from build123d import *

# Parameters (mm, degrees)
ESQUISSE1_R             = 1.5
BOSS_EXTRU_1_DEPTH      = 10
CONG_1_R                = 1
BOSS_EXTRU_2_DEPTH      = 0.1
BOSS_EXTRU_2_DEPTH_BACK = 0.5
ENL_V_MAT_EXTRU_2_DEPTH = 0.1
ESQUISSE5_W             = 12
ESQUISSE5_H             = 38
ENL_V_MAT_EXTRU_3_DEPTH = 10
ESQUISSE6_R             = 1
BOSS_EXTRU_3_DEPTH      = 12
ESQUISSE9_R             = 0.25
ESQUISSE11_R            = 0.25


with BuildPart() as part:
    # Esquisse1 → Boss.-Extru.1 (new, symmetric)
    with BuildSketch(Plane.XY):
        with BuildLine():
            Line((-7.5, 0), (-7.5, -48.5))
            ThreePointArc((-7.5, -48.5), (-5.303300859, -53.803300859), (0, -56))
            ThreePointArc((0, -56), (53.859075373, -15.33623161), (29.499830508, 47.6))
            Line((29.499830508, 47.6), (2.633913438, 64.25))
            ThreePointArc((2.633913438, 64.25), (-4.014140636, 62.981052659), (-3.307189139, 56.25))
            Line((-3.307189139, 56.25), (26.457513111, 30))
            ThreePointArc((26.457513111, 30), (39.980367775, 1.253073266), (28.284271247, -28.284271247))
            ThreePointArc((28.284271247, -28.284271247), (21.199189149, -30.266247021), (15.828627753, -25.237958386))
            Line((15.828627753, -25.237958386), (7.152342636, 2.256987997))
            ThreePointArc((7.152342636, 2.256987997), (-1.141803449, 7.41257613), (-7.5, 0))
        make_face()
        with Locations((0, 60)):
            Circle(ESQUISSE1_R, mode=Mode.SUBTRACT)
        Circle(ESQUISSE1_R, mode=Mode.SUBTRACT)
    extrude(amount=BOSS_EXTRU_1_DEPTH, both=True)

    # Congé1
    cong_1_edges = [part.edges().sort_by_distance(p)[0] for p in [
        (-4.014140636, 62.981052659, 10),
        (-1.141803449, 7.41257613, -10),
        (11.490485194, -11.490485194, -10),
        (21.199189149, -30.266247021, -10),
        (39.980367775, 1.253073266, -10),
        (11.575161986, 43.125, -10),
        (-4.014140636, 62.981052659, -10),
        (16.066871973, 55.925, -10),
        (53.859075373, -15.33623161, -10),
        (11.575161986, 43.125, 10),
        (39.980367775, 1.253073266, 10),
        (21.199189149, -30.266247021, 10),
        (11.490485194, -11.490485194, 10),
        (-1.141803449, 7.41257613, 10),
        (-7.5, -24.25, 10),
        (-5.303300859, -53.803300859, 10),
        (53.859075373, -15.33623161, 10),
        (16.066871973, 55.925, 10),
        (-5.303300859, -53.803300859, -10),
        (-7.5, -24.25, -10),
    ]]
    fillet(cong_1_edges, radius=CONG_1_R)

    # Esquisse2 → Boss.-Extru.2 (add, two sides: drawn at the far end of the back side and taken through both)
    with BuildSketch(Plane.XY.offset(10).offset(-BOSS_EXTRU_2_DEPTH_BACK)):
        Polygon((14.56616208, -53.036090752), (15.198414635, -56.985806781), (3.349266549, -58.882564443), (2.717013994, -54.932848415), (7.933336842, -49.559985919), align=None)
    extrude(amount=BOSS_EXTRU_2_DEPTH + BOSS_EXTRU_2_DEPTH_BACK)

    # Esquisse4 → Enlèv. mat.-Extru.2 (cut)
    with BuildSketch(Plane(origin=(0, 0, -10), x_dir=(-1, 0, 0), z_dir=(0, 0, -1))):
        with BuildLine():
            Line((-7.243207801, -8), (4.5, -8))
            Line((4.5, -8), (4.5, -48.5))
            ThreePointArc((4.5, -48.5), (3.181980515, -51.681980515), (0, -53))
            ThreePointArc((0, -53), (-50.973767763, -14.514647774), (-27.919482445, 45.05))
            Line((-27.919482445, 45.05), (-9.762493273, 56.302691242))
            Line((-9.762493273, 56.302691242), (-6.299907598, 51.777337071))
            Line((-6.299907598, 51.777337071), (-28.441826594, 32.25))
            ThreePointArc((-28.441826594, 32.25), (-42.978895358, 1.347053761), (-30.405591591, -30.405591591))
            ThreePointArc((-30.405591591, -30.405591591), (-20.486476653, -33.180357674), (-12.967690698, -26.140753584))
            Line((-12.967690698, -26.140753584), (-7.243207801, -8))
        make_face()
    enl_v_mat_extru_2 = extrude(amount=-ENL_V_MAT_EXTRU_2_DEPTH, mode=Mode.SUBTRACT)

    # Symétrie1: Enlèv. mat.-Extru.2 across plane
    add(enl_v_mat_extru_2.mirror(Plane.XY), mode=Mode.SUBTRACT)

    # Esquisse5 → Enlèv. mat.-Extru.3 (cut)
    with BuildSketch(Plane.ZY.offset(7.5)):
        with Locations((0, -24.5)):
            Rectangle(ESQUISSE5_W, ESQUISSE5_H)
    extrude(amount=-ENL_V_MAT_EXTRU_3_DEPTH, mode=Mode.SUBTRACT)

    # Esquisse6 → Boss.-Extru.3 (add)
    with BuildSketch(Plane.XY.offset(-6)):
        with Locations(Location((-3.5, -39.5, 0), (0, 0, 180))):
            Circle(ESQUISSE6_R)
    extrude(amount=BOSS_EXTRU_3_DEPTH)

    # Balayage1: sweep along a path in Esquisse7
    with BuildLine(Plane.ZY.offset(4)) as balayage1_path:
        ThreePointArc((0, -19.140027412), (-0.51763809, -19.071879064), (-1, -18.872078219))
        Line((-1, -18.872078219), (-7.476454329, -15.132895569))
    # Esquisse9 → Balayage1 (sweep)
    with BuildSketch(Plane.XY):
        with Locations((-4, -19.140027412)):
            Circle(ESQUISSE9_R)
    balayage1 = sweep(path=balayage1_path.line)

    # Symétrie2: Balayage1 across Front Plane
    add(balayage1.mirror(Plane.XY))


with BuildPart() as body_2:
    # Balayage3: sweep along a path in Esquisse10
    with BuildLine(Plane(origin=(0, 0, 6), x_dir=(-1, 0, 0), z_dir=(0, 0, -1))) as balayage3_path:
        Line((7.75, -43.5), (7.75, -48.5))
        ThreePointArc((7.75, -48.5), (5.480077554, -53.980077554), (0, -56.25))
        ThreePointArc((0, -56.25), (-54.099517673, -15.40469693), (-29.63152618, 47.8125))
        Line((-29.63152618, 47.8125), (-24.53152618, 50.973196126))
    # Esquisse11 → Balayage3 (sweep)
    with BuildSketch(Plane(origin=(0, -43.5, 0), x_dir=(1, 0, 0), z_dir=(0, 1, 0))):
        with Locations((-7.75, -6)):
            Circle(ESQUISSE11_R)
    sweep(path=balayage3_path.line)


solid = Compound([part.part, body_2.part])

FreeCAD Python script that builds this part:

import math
import FreeCAD as App
import Part
import Sketcher
from FreeCAD import Vector
Q = App.Units.Quantity


def edges_at(feature, points):
    """Names of the edges that pass closest to the given points."""
    edges = feature.Shape.Edges
    near = lambda p: min(range(len(edges)), key=lambda i: edges[i].distToShape(Part.Vertex(*p))[0])
    return sorted({f"Edge{near(p) + 1}" for p in points})

doc = App.newDocument("Part")
body = doc.addObject("PartDesign::Body", "Body")

sketch1 = body.newObject("Sketcher::SketchObject", "Sketch")
sketch1.AttachmentSupport = (doc.getObject("XY_Plane"), [""])
sketch1.MapMode = "FlatFace"
sketch1.addGeometry(Part.LineSegment(Vector(-7.5, 0, 0), Vector(-7.5, -48.5, 0)), False)
sketch1.addGeometry(Part.ArcOfCircle(Part.Circle(Vector(0, -48.5, 0), Vector(0, 0, 1), 7.5), math.radians(180), math.radians(270)), False)
sketch1.addGeometry(Part.ArcOfCircle(Part.Circle(Vector(0, 0, 0), Vector(0, 0, 1), 56), math.radians(-90), math.radians(58)), False)
sketch1.addGeometry(Part.LineSegment(Vector(29.5, 47.6, 0), Vector(2.6, 64.2, 0)), False)
sketch1.addGeometry(Part.ArcOfCircle(Part.Circle(Vector(0, 60, 0), Vector(0, 0, 1), 5), math.radians(58), math.radians(229)), False)
sketch1.addGeometry(Part.LineSegment(Vector(-3.3, 56.2, 0), Vector(26.5, 30, 0)), False)
sketch1.addGeometry(Part.ArcOfCircle(Part.Circle(Vector(0, 0, 0), Vector(0, 0, 1), 40), math.radians(-45), math.radians(49)), False)
sketch1.addGeometry(Part.ArcOfCircle(Part.Circle(Vector(23, -23, 0), Vector(0, 0, 1), 7.5), math.radians(-162), math.radians(-45)), False)
sketch1.addGeometry(Part.LineSegment(Vector(15.8, -25.2, 0), Vector(7.2, 2.3, 0)), False)
sketch1.addGeometry(Part.ArcOfCircle(Part.Circle(Vector(0, 0, 0), Vector(0, 0, 1), 7.5), math.radians(18), math.radians(180)), False)
sketch1.addGeometry(Part.Circle(Vector(0, 0, 0), Vector(0, 0, 1), 1.5), False)
sketch1.addGeometry(Part.Circle(Vector(0, 60, 0), Vector(0, 0, 1), 1.5), False)
sketch1.addConstraint(Sketcher.Constraint("Tangent", 0, 2, 1, 1))
sketch1.addConstraint(Sketcher.Constraint("Tangent", 1, 2, 2, 1))
sketch1.addConstraint(Sketcher.Constraint("Tangent", 2, 2, 3, 1))
sketch1.addConstraint(Sketcher.Constraint("Tangent", 3, 2, 4, 1))
sketch1.addConstraint(Sketcher.Constraint("Tangent", 4, 2, 5, 1))
sketch1.addConstraint(Sketcher.Constraint("Tangent", 5, 2, 6, 2))
sketch1.addConstraint(Sketcher.Constraint("Tangent", 6, 1, 7, 2))
sketch1.addConstraint(Sketcher.Constraint("Tangent", 7, 1, 8, 1))
sketch1.addConstraint(Sketcher.Constraint("Tangent", 8, 2, 9, 1))
sketch1.addConstraint(Sketcher.Constraint("Tangent", 9, 2, 0, 1))
sketch1.addConstraint(Sketcher.Constraint("Vertical", 0))
sketch1.addConstraint(Sketcher.Constraint("Coincident", 2, 3, -1, 1))
sketch1.addConstraint(Sketcher.Constraint("Coincident", 6, 3, -1, 1))
sketch1.addConstraint(Sketcher.Constraint("Coincident", 9, 3, -1, 1))
sketch1.addConstraint(Sketcher.Constraint("Coincident", 10, 3, -1, 1))
sketch1.addConstraint(Sketcher.Constraint("Coincident", 11, 3, 4, 3))
sketch1.addConstraint(Sketcher.Constraint("Equal", 1, 7))
sketch1.addConstraint(Sketcher.Constraint("Equal", 7, 9))
sketch1.addConstraint(Sketcher.Constraint("Equal", 10, 11))
sketch1.addConstraint(Sketcher.Constraint("PointOnObject", 4, 3, -2))
sketch1.addConstraint(Sketcher.Constraint("Diameter", 10, Q("3 mm")))
sketch1.addConstraint(Sketcher.Constraint("Radius", 2, Q("56 mm")))
sketch1.addConstraint(Sketcher.Constraint("Radius", 4, Q("5 mm")))
sketch1.addConstraint(Sketcher.Constraint("Radius", 6, Q("40 mm")))
sketch1.addConstraint(Sketcher.Constraint("Radius", 1, Q("7.5 mm")))
sketch1.addConstraint(Sketcher.Constraint("DistanceY", -1, 1, 4, 3, Q("60 mm")))
sketch1.addConstraint(Sketcher.Constraint("DistanceX", 7, 3, 6, 1, Q("5.303301 mm")))
pad1 = body.newObject("PartDesign::Pad", "Pad")
pad1.Profile = sketch1
pad1.Length = 20
pad1.Midplane = True
doc.recompute()

fillet = body.newObject("PartDesign::Fillet", "Fillet")
fillet.Base = (pad1, edges_at(pad1, [
    (-4.014, 62.981, 10),
    (-1.142, 7.413, -10),
    (11.49, -11.49, -10),
    (21.199, -30.266, -10),
    (39.98, 1.253, -10),
    (11.575, 43.125, -10),
    (-4.014, 62.981, -10),
    (16.067, 55.925, -10),
    (53.859, -15.336, -10),
    (11.575, 43.125, 10),
    (39.98, 1.253, 10),
    (21.199, -30.266, 10),
    (11.49, -11.49, 10),
    (-1.142, 7.413, 10),
    (-7.5, -24.25, 10),
    (-5.303, -53.803, 10),
    (53.859, -15.336, 10),
    (16.067, 55.925, 10),
    (-5.303, -53.803, -10),
    (-7.5, -24.25, -10),
]))
fillet.Radius = 1

sketch2 = body.newObject("Sketcher::SketchObject", "Sketch001")
sketch2.AttachmentSupport = (doc.getObject("XY_Plane"), [""])
sketch2.MapMode = "FlatFace"
sketch2.AttachmentOffset = App.Placement(Vector(0, 0, 10), App.Rotation())
sketch2.addGeometry(Part.LineSegment(Vector(15.2, -57, 0), Vector(14.6, -53, 0)), False)
sketch2.addGeometry(Part.LineSegment(Vector(14.6, -53, 0), Vector(7.9, -49.6, 0)), False)
sketch2.addGeometry(Part.LineSegment(Vector(7.9, -49.6, 0), Vector(2.7, -54.9, 0)), False)
sketch2.addGeometry(Part.LineSegment(Vector(2.7, -54.9, 0), Vector(3.3, -58.9, 0)), False)
sketch2.addGeometry(Part.LineSegment(Vector(3.3, -58.9, 0), Vector(15.2, -57, 0)), False)
sketch2.addConstraint(Sketcher.Constraint("Coincident", 0, 2, 1, 1))
sketch2.addConstraint(Sketcher.Constraint("Coincident", 1, 2, 2, 1))
sketch2.addConstraint(Sketcher.Constraint("Coincident", 2, 2, 3, 1))
sketch2.addConstraint(Sketcher.Constraint("Coincident", 3, 2, 4, 1))
sketch2.addConstraint(Sketcher.Constraint("Coincident", 4, 2, 0, 1))
sketch2.addConstraint(Sketcher.Constraint("Parallel", 0, 3))
sketch2.addConstraint(Sketcher.Constraint("Perpendicular", 3, 4))
sketch2.addConstraint(Sketcher.Constraint("Equal", 1, 2))
sketch2.addConstraint(Sketcher.Constraint("Equal", 0, 3))
sketch2.addConstraint(Sketcher.Constraint("Distance", 0, Q("4 mm")))
sketch2.addConstraint(Sketcher.Constraint("Distance", 4, Q("12 mm")))
sketch2.addConstraint(Sketcher.Constraint("DistanceX", 2, 2, 4, 2, Q("12.481401 mm")))
sketch2.addConstraint(Sketcher.Constraint("DistanceY", 0, 2, -1, 1, Q("53.036091 mm")))
sketch2.addConstraint(Sketcher.Constraint("DistanceX", 3, 2, 1, 2, Q("4.58407 mm")))
sketch2.addConstraint(Sketcher.Constraint("DistanceX", -1, 1, 0, 2, Q("14.566162 mm")))
pad2 = body.newObject("PartDesign::Pad", "Pad001")
pad2.Profile = sketch2
pad2.Type = "TwoLengths"
pad2.Length = 0.1
pad2.Length2 = 0.5

sketch3 = body.newObject("Sketcher::SketchObject", "Sketch002")
sketch3.AttachmentSupport = (doc.getObject("XY_Plane"), [""])
sketch3.MapMode = "FlatFace"
sketch3.AttachmentOffset = App.Placement(Vector(0, 0, -10), App.Rotation())
sketch3.addGeometry(Part.LineSegment(Vector(-4.5, -8, 0), Vector(7.2, -8, 0)), False)
sketch3.addGeometry(Part.LineSegment(Vector(7.2, -8, 0), Vector(13, -26.1, 0)), False)
sketch3.addGeometry(Part.ArcOfCircle(Part.Circle(Vector(23, -23, 0), Vector(0, 0, 1), 10.5), math.radians(-162), math.radians(-45)), False)
sketch3.addGeometry(Part.ArcOfCircle(Part.Circle(Vector(0, 0, 0), Vector(0, 0, 1), 43), math.radians(-45), math.radians(49)), False)
sketch3.addGeometry(Part.LineSegment(Vector(28.4, 32.2, 0), Vector(6.3, 51.8, 0)), False)
sketch3.addGeometry(Part.LineSegment(Vector(6.3, 51.8, 0), Vector(9.8, 56.3, 0)), False)
sketch3.addGeometry(Part.LineSegment(Vector(9.8, 56.3, 0), Vector(27.9, 45, 0)), False)
sketch3.addGeometry(Part.ArcOfCircle(Part.Circle(Vector(0, 0, 0), Vector(0, 0, 1), 53), math.radians(-90), math.radians(58)), False)
sketch3.addGeometry(Part.ArcOfCircle(Part.Circle(Vector(0, -48.5, 0), Vector(0, 0, 1), 4.5), math.radians(-180), math.radians(-90)), False)
sketch3.addGeometry(Part.LineSegment(Vector(-4.5, -48.5, 0), Vector(-4.5, -8, 0)), False)
sketch3.addConstraint(Sketcher.Constraint("Coincident", 0, 2, 1, 1))
sketch3.addConstraint(Sketcher.Constraint("Tangent", 1, 2, 2, 1))
sketch3.addConstraint(Sketcher.Constraint("Tangent", 2, 2, 3, 1))
sketch3.addConstraint(Sketcher.Constraint("Tangent", 3, 2, 4, 1))
sketch3.addConstraint(Sketcher.Constraint("Coincident", 4, 2, 5, 1))
sketch3.addConstraint(Sketcher.Constraint("Coincident", 5, 2, 6, 1))
sketch3.addConstraint(Sketcher.Constraint("Tangent", 6, 2, 7, 2))
sketch3.addConstraint(Sketcher.Constraint("Tangent", 7, 1, 8, 2))
sketch3.addConstraint(Sketcher.Constraint("Tangent", 8, 1, 9, 1))
sketch3.addConstraint(Sketcher.Constraint("Coincident", 9, 2, 0, 1))
sketch3.addConstraint(Sketcher.Constraint("Horizontal", 0))
sketch3.addConstraint(Sketcher.Constraint("Vertical", 9))
sketch3.addConstraint(Sketcher.Constraint("Coincident", 3, 3, -1, 1))
sketch3.addConstraint(Sketcher.Constraint("Coincident", 7, 3, -1, 1))
sketch3.addConstraint(Sketcher.Constraint("PointOnObject", 8, 3, -2))
sketch3.addConstraint(Sketcher.Constraint("Radius", 3, Q("43 mm")))
sketch3.addConstraint(Sketcher.Constraint("Radius", 7, Q("53 mm")))
sketch3.addConstraint(Sketcher.Constraint("Radius", 2, Q("10.5 mm")))
sketch3.addConstraint(Sketcher.Constraint("Radius", 8, Q("4.5 mm")))
sketch3.addConstraint(Sketcher.Constraint("DistanceY", 9, 1, 9, 2, Q("40.5 mm")))
sketch3.addConstraint(Sketcher.Constraint("DistanceY", 3, 2, 6, 2, Q("12.8 mm")))
sketch3.addConstraint(Sketcher.Constraint("DistanceY", -1, 1, 3, 2, Q("32.25 mm")))
sketch3.addConstraint(Sketcher.Constraint("Distance", 5, Q("5.698099 mm")))
sketch3.addConstraint(Sketcher.Constraint("DistanceX", 1, 2, 2, 2, Q("17.437901 mm")))
sketch3.addConstraint(Sketcher.Constraint("DistanceX", 4, 2, 0, 2, Q("0.9433 mm")))
sketch3.addConstraint(Sketcher.Constraint("Distance", 1, Q("19.02253 mm")))
pocket1 = body.newObject("PartDesign::Pocket", "Pocket")
pocket1.Profile = sketch3
pocket1.Length = 0.1
pocket1.Reversed = True
doc.recompute()

mirrored = body.newObject("PartDesign::Mirrored", "Mirrored")
mirrored.Originals = [pocket1]
mirrored.MirrorPlane = (doc.getObject("XY_Plane"), [""])
body.Tip = mirrored

sketch4 = body.newObject("Sketcher::SketchObject", "Sketch003")
sketch4.AttachmentSupport = (doc.getObject("YZ_Plane"), [""])
sketch4.MapMode = "FlatFace"
sketch4.AttachmentOffset = App.Placement(Vector(0, 0, -7.5), App.Rotation())
sketch4.addGeometry(Part.LineSegment(Vector(-6, -6, 0), Vector(-44, -6, 0)), False)
sketch4.addGeometry(Part.LineSegment(Vector(-44, -6, 0), Vector(-44, 6, 0)), False)
sketch4.addGeometry(Part.LineSegment(Vector(-44, 6, 0), Vector(-6, 6, 0)), False)
sketch4.addGeometry(Part.LineSegment(Vector(-6, 6, 0), Vector(-6, -6, 0)), False)
sketch4.addConstraint(Sketcher.Constraint("Coincident", 0, 2, 1, 1))
sketch4.addConstraint(Sketcher.Constraint("Coincident", 1, 2, 2, 1))
sketch4.addConstraint(Sketcher.Constraint("Coincident", 2, 2, 3, 1))
sketch4.addConstraint(Sketcher.Constraint("Coincident", 3, 2, 0, 1))
sketch4.addConstraint(Sketcher.Constraint("Horizontal", 0))
sketch4.addConstraint(Sketcher.Constraint("Vertical", 1))
sketch4.addConstraint(Sketcher.Constraint("Horizontal", 2))
sketch4.addConstraint(Sketcher.Constraint("Vertical", 3))
sketch4.addConstraint(Sketcher.Constraint("DistanceX", 0, 2, 0, 1, Q("38 mm")))
sketch4.addConstraint(Sketcher.Constraint("DistanceY", 1, 1, 1, 2, Q("12 mm")))
sketch4.addConstraint(Sketcher.Constraint("DistanceY", 0, 2, -1, 1, Q("6 mm")))
sketch4.addConstraint(Sketcher.Constraint("DistanceX", 0, 2, -1, 1, Q("43.5 mm")))
pocket2 = body.newObject("PartDesign::Pocket", "Pocket001")
pocket2.Profile = sketch4
pocket2.Length = 10
pocket2.Reversed = True

sketch5 = body.newObject("Sketcher::SketchObject", "Sketch004")
sketch5.AttachmentSupport = (doc.getObject("XY_Plane"), [""])
sketch5.MapMode = "FlatFace"
sketch5.AttachmentOffset = App.Placement(Vector(0, 0, -6), App.Rotation())
sketch5.addGeometry(Part.Circle(Vector(-3.5, -39.5, 0), Vector(0, 0, 1), 1), False)
sketch5.addConstraint(Sketcher.Constraint("Diameter", 0, Q("2 mm")))
sketch5.addConstraint(Sketcher.Constraint("DistanceX", 0, 3, -1, 1, Q("3.5 mm")))
sketch5.addConstraint(Sketcher.Constraint("DistanceY", 0, 3, -1, 1, Q("39.5 mm")))
pad3 = body.newObject("PartDesign::Pad", "Pad002")
pad3.Profile = sketch5
pad3.Length = 12

sketch6 = body.newObject("Sketcher::SketchObject", "Sketch005")
sketch6.AttachmentSupport = (doc.getObject("XY_Plane"), [""])
sketch6.MapMode = "FlatFace"
sketch6.addGeometry(Part.Circle(Vector(-4, -19.140027, 0), Vector(0, 0, 1), 0.25), False)
sketch6.addConstraint(Sketcher.Constraint("Diameter", 0, Q("0.5 mm")))
sketch6.addConstraint(Sketcher.Constraint("DistanceX", 0, 3, -1, 1, Q("4 mm")))
sketch6.addConstraint(Sketcher.Constraint("DistanceY", 0, 3, -1, 1, Q("19.140027 mm")))

sketch7 = body.newObject("Sketcher::SketchObject", "Sketch006")
sketch7.AttachmentSupport = (doc.getObject("YZ_Plane"), [""])
sketch7.MapMode = "FlatFace"
sketch7.AttachmentOffset = App.Placement(Vector(0, 0, -4), App.Rotation())
sketch7.addGeometry(Part.ArcOfCircle(Part.Circle(Vector(-17.1, 0, 0), Vector(0, 0, 1), 2), math.radians(-180), math.radians(-150)), False)
sketch7.addGeometry(Part.LineSegment(Vector(-18.9, -1, 0), Vector(-15.1, -7.5, 0)), False)
sketch7.addConstraint(Sketcher.Constraint("Tangent", 0, 2, 1, 1))
sketch7.addConstraint(Sketcher.Constraint("PointOnObject", 0, 3, -1))
sketch7.addConstraint(Sketcher.Constraint("PointOnObject", 0, 1, -1))
sketch7.addConstraint(Sketcher.Constraint("Radius", 0, Q("2 mm")))
sketch7.addConstraint(Sketcher.Constraint("Angle", 1, Q("-60 deg")))
sketch7.addConstraint(Sketcher.Constraint("DistanceX", 0, 2, -1, 1, Q("18.872078 mm")))
sketch7.addConstraint(Sketcher.Constraint("DistanceX", 0, 3, 1, 2, Q("2.007132 mm")))
doc.recompute()

additivepipe = body.newObject("PartDesign::AdditivePipe", "AdditivePipe")
additivepipe.Profile = sketch6
additivepipe.Spine = (sketch7, ["Edge1", "Edge2"])
doc.recompute()

mirrored2 = body.newObject("PartDesign::Mirrored", "Mirrored001")
mirrored2.Originals = [additivepipe]
mirrored2.MirrorPlane = (doc.getObject("XY_Plane"), [""])
body.Tip = mirrored2
body2 = doc.addObject("PartDesign::Body", "Body001")

sketch8 = body2.newObject("Sketcher::SketchObject", "Sketch007")
sketch8.AttachmentSupport = (doc.getObject("XZ_Plane001"), [""])
sketch8.MapMode = "FlatFace"
sketch8.AttachmentOffset = App.Placement(Vector(0, 0, 43.5), App.Rotation())
sketch8.addGeometry(Part.Circle(Vector(-7.75, 6, 0), Vector(0, 0, 1), 0.25), False)
sketch8.addConstraint(Sketcher.Constraint("Diameter", 0, Q("0.5 mm")))
sketch8.addConstraint(Sketcher.Constraint("DistanceY", -1, 1, 0, 3, Q("6 mm")))
sketch8.addConstraint(Sketcher.Constraint("DistanceX", 0, 3, -1, 1, Q("7.75 mm")))

sketch9 = body2.newObject("Sketcher::SketchObject", "Sketch008")
sketch9.AttachmentSupport = (doc.getObject("XY_Plane001"), [""])
sketch9.MapMode = "FlatFace"
sketch9.AttachmentOffset = App.Placement(Vector(0, 0, 6), App.Rotation())
sketch9.addGeometry(Part.LineSegment(Vector(-8, -44, 0), Vector(-8, -48, 0)), False)
sketch9.addGeometry(Part.ArcOfCircle(Part.Circle(Vector(0, -48, 0), Vector(0, 0, 1), 8), math.radians(-180), math.radians(-90)), False)
sketch9.addGeometry(Part.ArcOfCircle(Part.Circle(Vector(0, 0, 0), Vector(0, 0, 1), 56), math.radians(-90), math.radians(58)), False)
sketch9.addGeometry(Part.LineSegment(Vector(30, 48, 0), Vector(25, 51, 0)), False)
sketch9.addConstraint(Sketcher.Constraint("Tangent", 0, 2, 1, 1))
sketch9.addConstraint(Sketcher.Constraint("Tangent", 1, 2, 2, 1))
sketch9.addConstraint(Sketcher.Constraint("Tangent", 2, 2, 3, 1))
sketch9.addConstraint(Sketcher.Constraint("Vertical", 0))
sketch9.addConstraint(Sketcher.Constraint("Coincident", 2, 3, -1, 1))
sketch9.addConstraint(Sketcher.Constraint("PointOnObject", 1, 3, -2))
sketch9.addConstraint(Sketcher.Constraint("DistanceY", 0, 2, 0, 1, Q("5 mm")))
sketch9.addConstraint(Sketcher.Constraint("Radius", 1, Q("7.75 mm")))
sketch9.addConstraint(Sketcher.Constraint("Radius", 2, Q("56.25 mm")))
sketch9.addConstraint(Sketcher.Constraint("Distance", 3, Q("6 mm")))
sketch9.addConstraint(Sketcher.Constraint("DistanceY", -1, 1, 2, 2, Q("47.8125 mm")))
doc.recompute()

additivepipe2 = body2.newObject("PartDesign::AdditivePipe", "AdditivePipe001")
additivepipe2.Profile = sketch8
additivepipe2.Spine = (sketch9, ["Edge1", "Edge2", "Edge3", "Edge4"])

doc.recompute()
